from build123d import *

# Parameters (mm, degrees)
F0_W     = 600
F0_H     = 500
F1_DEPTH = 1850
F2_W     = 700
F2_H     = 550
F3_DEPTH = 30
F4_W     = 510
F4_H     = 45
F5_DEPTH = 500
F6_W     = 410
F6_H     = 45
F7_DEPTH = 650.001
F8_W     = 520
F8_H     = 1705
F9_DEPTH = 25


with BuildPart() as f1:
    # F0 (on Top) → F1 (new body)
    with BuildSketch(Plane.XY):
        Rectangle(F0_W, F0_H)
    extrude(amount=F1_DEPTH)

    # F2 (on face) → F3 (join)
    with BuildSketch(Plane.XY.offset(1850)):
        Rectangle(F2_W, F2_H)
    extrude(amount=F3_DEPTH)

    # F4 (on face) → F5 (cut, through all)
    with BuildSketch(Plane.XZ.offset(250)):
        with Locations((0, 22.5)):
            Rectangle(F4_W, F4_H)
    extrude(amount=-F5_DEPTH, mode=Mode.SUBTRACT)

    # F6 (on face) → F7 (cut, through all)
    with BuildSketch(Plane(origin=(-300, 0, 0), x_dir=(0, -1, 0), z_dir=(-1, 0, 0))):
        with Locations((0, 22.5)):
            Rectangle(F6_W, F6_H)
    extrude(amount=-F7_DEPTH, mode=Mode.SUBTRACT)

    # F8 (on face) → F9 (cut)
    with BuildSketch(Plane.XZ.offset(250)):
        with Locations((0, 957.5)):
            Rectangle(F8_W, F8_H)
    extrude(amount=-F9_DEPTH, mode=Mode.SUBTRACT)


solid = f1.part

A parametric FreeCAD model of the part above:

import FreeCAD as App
import Part
import Sketcher

doc = App.newDocument("Part")
body = doc.addObject("PartDesign::Body", "Body")

sketch1 = body.newObject("Sketcher::SketchObject", "Sketch")
sketch1.AttachmentSupport = (doc.getObject("XY_Plane"), [""])
sketch1.MapMode = "FlatFace"
sketch1.addGeometry([
    Part.LineSegment(App.Vector(-300, 250, 0), App.Vector(-300, -250, 0)),
    Part.LineSegment(App.Vector(-300, -250, 0), App.Vector(300, -250, 0)),
    Part.LineSegment(App.Vector(300, -250, 0), App.Vector(300, 250, 0)),
    Part.LineSegment(App.Vector(300, 250, 0), App.Vector(-300, 250, 0)),
], False)
sketch1.addConstraint([
    Sketcher.Constraint("Coincident", 0, 2, 1, 1),
    Sketcher.Constraint("Coincident", 1, 2, 2, 1),
    Sketcher.Constraint("Coincident", 2, 2, 3, 1),
    Sketcher.Constraint("Coincident", 3, 2, 0, 1),
    Sketcher.Constraint("Vertical", 0),
    Sketcher.Constraint("Horizontal", 1),
    Sketcher.Constraint("Vertical", 2),
    Sketcher.Constraint("Horizontal", 3),
    Sketcher.Constraint("Symmetric", 0, 2, 2, 2, -1, 1),
    Sketcher.Constraint("DistanceX", 1, 1, 1, 2, 600.0),
    Sketcher.Constraint("DistanceY", 0, 2, 0, 1, 500.0),
])
pad1 = body.newObject("PartDesign::Pad", "Pad")
pad1.Profile = sketch1
pad1.Length = 1850

sketch2 = body.newObject("Sketcher::SketchObject", "Sketch001")
sketch2.AttachmentSupport = (doc.getObject("XY_Plane"), [""])
sketch2.MapMode = "FlatFace"
sketch2.AttachmentOffset = App.Placement(App.Vector(0, 0, 1850), App.Rotation())
sketch2.addGeometry([
    Part.LineSegment(App.Vector(-350, 275, 0), App.Vector(-350, -275, 0)),
    Part.LineSegment(App.Vector(-350, -275, 0), App.Vector(350, -275, 0)),
    Part.LineSegment(App.Vector(350, -275, 0), App.Vector(350, 275, 0)),
    Part.LineSegment(App.Vector(350, 275, 0), App.Vector(-350, 275, 0)),
], False)
sketch2.addConstraint([
    Sketcher.Constraint("Coincident", 0, 2, 1, 1),
    Sketcher.Constraint("Coincident", 1, 2, 2, 1),
    Sketcher.Constraint("Coincident", 2, 2, 3, 1),
    Sketcher.Constraint("Coincident", 3, 2, 0, 1),
    Sketcher.Constraint("Vertical", 0),
    Sketcher.Constraint("Horizontal", 1),
    Sketcher.Constraint("Vertical", 2),
    Sketcher.Constraint("Horizontal", 3),
    Sketcher.Constraint("Symmetric", 0, 2, 2, 2, -1, 1),
    Sketcher.Constraint("DistanceX", 1, 1, 1, 2, 700.0),
    Sketcher.Constraint("DistanceY", 0, 2, 0, 1, 550.0),
])
pad2 = body.newObject("PartDesign::Pad", "Pad001")
pad2.Profile = sketch2
pad2.Length = 30

sketch3 = body.newObject("Sketcher::SketchObject", "Sketch002")
sketch3.AttachmentSupport = (doc.getObject("XZ_Plane"), [""])
sketch3.MapMode = "FlatFace"
sketch3.AttachmentOffset = App.Placement(App.Vector(0, 0, 250), App.Rotation())
sketch3.addGeometry([
    Part.LineSegment(App.Vector(-255, 45, 0), App.Vector(-255, 0, 0)),
    Part.LineSegment(App.Vector(-255, 0, 0), App.Vector(255, 0, 0)),
    Part.LineSegment(App.Vector(255, 0, 0), App.Vector(255, 45, 0)),
    Part.LineSegment(App.Vector(255, 45, 0), App.Vector(-255, 45, 0)),
], False)
sketch3.addConstraint([
    Sketcher.Constraint("Coincident", 0, 2, 1, 1),
    Sketcher.Constraint("Coincident", 1, 2, 2, 1),
    Sketcher.Constraint("Coincident", 2, 2, 3, 1),
    Sketcher.Constraint("Coincident", 3, 2, 0, 1),
    Sketcher.Constraint("Vertical", 0),
    Sketcher.Constraint("Horizontal", 1),
    Sketcher.Constraint("Vertical", 2),
    Sketcher.Constraint("Horizontal", 3),
    Sketcher.Constraint("Symmetric", 0, 2, 1, 2, -1, 1),
    Sketcher.Constraint("DistanceX", 1, 1, 1, 2, 510.0),
    Sketcher.Constraint("DistanceY", 0, 2, 0, 1, 45.0),
])
pocket1 = body.newObject("PartDesign::Pocket", "Pocket")
pocket1.Profile = sketch3
pocket1.Type = "ThroughAll"

sketch4 = body.newObject("Sketcher::SketchObject", "Sketch003")
sketch4.AttachmentSupport = (doc.getObject("YZ_Plane"), [""])
sketch4.MapMode = "FlatFace"
sketch4.AttachmentOffset = App.Placement(App.Vector(0, 0, -300), App.Rotation())
sketch4.addGeometry([
    Part.LineSegment(App.Vector(205, 45, 0), App.Vector(205, 0, 0)),
    Part.LineSegment(App.Vector(205, 0, 0), App.Vector(-205, 0, 0)),
    Part.LineSegment(App.Vector(-205, 0, 0), App.Vector(-205, 45, 0)),
    Part.LineSegment(App.Vector(-205, 45, 0), App.Vector(205, 45, 0)),
], False)
sketch4.addConstraint([
    Sketcher.Constraint("Coincident", 0, 2, 1, 1),
    Sketcher.Constraint("Coincident", 1, 2, 2, 1),
    Sketcher.Constraint("Coincident", 2, 2, 3, 1),
    Sketcher.Constraint("Coincident", 3, 2, 0, 1),
    Sketcher.Constraint("Vertical", 0),
    Sketcher.Constraint("Horizontal", 1),
    Sketcher.Constraint("Vertical", 2),
    Sketcher.Constraint("Horizontal", 3),
    Sketcher.Constraint("Symmetric", 0, 2, 1, 2, -1, 1),
    Sketcher.Constraint("DistanceX", 1, 2, 1, 1, 410.0),
    Sketcher.Constraint("DistanceY", 0, 2, 0, 1, 45.0),
])
pocket2 = body.newObject("PartDesign::Pocket", "Pocket001")
pocket2.Profile = sketch4
pocket2.Type = "ThroughAll"
pocket2.Reversed = True

sketch5 = body.newObject("Sketcher::SketchObject", "Sketch004")
sketch5.AttachmentSupport = (doc.getObject("XZ_Plane"), [""])
sketch5.MapMode = "FlatFace"
sketch5.AttachmentOffset = App.Placement(App.Vector(0, 0, 250), App.Rotation())
sketch5.addGeometry([
    Part.LineSegment(App.Vector(-260, 1810, 0), App.Vector(-260, 105, 0)),
    Part.LineSegment(App.Vector(-260, 105, 0), App.Vector(260, 105, 0)),
    Part.LineSegment(App.Vector(260, 105, 0), App.Vector(260, 1810, 0)),
    Part.LineSegment(App.Vector(260, 1810, 0), App.Vector(-260, 1810, 0)),
], False)
sketch5.addConstraint([
    Sketcher.Constraint("Coincident", 0, 2, 1, 1),
    Sketcher.Constraint("Coincident", 1, 2, 2, 1),
    Sketcher.Constraint("Coincident", 2, 2, 3, 1),
    Sketcher.Constraint("Coincident", 3, 2, 0, 1),
    Sketcher.Constraint("Vertical", 0),
    Sketcher.Constraint("Horizontal", 1),
    Sketcher.Constraint("Vertical", 2),
    Sketcher.Constraint("Horizontal", 3),
    Sketcher.Constraint("DistanceX", 1, 1, 1, 2, 520.0),
    Sketcher.Constraint("DistanceY", 0, 2, 0, 1, 1705.0),
    Sketcher.Constraint("DistanceX", 0, 2, -1, 1, 260.0),
    Sketcher.Constraint("DistanceY", -1, 1, 0, 2, 105.0),
])
pocket3 = body.newObject("PartDesign::Pocket", "Pocket002")
pocket3.Profile = sketch5
pocket3.Length = 25

doc.recompute()
